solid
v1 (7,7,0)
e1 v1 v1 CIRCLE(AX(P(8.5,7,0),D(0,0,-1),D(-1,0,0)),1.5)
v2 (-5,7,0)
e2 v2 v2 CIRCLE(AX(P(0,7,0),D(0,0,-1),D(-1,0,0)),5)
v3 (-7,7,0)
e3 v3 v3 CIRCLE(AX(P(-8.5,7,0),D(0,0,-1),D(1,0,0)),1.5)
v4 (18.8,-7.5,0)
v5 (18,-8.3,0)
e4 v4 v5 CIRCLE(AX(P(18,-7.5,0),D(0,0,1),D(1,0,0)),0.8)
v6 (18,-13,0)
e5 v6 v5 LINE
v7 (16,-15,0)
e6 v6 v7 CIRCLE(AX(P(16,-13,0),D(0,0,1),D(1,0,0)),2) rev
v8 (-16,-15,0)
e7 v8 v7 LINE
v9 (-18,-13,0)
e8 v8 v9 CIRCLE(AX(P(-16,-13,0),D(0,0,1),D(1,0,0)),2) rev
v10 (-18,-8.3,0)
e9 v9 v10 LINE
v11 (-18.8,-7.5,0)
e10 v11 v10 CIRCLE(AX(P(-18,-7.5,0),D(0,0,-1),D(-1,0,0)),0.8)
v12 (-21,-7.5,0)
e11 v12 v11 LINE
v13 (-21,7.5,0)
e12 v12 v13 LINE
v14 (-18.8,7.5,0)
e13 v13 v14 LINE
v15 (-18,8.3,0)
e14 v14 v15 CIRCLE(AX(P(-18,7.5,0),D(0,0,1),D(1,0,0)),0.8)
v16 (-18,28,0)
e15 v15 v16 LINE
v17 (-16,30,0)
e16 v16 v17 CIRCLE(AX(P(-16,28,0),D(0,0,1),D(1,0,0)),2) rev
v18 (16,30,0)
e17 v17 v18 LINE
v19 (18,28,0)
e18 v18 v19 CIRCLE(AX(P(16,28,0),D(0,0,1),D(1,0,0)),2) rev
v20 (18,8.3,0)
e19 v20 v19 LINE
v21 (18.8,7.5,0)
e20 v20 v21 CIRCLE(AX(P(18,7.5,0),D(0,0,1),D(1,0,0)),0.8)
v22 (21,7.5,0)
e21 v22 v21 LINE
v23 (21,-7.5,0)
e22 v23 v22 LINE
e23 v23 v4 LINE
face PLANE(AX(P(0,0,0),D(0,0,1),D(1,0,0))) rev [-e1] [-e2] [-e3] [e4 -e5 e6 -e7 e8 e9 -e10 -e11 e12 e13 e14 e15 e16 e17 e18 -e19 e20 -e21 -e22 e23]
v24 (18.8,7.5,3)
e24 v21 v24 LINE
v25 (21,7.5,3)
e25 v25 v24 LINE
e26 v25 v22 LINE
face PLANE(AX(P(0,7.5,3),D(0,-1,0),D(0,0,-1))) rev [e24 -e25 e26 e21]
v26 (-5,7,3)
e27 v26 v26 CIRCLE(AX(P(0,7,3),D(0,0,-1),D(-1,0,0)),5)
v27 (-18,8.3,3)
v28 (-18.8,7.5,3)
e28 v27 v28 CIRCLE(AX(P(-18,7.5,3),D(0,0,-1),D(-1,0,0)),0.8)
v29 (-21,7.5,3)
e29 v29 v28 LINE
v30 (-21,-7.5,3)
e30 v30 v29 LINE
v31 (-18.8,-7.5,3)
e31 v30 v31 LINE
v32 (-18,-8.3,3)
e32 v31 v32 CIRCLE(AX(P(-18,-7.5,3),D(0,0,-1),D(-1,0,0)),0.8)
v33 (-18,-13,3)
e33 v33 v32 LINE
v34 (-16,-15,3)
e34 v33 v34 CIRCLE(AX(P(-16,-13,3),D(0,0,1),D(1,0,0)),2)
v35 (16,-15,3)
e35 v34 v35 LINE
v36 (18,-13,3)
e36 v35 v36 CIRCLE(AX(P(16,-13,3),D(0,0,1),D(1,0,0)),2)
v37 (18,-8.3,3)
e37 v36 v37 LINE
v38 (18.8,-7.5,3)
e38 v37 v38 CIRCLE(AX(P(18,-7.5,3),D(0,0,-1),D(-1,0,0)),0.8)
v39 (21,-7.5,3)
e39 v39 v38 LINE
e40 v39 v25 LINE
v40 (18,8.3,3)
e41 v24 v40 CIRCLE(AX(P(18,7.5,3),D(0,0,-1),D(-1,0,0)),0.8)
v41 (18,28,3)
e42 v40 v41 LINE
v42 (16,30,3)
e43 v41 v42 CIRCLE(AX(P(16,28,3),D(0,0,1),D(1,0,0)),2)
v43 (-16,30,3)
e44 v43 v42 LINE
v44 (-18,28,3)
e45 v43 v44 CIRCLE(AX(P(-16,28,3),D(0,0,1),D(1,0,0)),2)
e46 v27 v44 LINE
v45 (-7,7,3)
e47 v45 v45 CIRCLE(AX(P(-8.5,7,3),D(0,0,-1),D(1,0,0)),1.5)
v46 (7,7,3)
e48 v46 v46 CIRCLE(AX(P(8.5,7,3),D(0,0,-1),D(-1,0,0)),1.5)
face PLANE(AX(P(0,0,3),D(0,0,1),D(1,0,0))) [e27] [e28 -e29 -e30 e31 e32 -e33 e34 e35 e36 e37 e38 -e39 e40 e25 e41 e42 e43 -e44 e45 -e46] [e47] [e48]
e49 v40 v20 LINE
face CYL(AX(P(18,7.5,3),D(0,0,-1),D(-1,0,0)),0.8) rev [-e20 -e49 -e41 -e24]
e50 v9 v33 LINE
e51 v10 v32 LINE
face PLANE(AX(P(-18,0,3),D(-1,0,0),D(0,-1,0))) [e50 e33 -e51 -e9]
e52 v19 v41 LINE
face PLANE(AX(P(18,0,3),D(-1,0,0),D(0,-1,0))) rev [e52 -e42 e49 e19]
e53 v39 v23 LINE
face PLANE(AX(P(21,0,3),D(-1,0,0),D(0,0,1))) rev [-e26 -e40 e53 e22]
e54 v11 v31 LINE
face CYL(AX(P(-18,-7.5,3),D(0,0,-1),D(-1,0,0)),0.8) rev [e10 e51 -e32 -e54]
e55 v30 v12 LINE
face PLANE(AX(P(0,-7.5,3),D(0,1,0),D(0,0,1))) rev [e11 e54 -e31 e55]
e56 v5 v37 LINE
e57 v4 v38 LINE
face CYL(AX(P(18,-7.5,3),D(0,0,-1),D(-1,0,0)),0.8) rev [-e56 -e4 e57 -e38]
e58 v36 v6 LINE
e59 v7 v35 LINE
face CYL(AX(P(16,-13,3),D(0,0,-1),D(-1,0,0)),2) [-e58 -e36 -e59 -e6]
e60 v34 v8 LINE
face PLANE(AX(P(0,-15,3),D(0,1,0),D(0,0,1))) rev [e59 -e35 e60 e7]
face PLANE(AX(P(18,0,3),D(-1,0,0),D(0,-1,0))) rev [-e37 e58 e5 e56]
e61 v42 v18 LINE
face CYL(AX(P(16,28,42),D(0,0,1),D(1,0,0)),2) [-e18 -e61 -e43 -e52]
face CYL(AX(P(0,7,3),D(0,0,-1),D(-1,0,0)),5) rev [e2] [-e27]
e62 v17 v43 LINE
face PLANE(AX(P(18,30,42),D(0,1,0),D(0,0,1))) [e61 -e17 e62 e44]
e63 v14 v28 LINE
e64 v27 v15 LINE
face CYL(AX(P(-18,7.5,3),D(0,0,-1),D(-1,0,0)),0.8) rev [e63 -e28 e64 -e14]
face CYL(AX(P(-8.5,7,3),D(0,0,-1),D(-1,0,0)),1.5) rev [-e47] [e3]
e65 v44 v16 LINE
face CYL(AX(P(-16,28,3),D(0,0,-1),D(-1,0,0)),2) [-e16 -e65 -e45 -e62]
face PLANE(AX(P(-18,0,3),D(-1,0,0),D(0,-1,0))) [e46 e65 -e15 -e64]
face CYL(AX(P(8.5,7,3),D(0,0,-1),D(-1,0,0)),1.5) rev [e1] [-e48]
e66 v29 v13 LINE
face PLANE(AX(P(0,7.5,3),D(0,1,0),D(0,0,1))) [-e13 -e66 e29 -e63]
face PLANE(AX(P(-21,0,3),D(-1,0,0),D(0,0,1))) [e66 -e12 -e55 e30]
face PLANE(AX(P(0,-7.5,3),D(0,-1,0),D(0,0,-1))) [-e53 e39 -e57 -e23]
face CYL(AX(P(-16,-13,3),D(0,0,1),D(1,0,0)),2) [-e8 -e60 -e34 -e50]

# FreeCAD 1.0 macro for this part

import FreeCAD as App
import Part
import Sketcher


def edges_at(feature, points):
    """Names of the edges that pass closest to the given points."""
    edges = feature.Shape.Edges
    near = lambda p: min(range(len(edges)), key=lambda i: edges[i].distToShape(Part.Vertex(*p))[0])
    return sorted({f"Edge{near(p) + 1}" for p in points})

doc = App.newDocument("Part")
body = doc.addObject("PartDesign::Body", "Body")

# Sketch on XY plane
sketch1 = doc.addObject("Sketcher::SketchObject", "Sketch")
body.addObject(sketch1)
sketch1.AttachmentSupport = (doc.XY_Plane, [""])
sketch1.MapMode = "FlatFace"
sketch1.addGeometry([
    Part.LineSegment(App.Vector(-18, -7.5, 0), App.Vector(-18, -15, 0)),  # 0
    Part.LineSegment(App.Vector(-18, -15, 0), App.Vector(18, -15, 0)),  # 1
    Part.LineSegment(App.Vector(18, -15, 0), App.Vector(18, -7.5, 0)),  # 2
    Part.LineSegment(App.Vector(18, -7.5, 0), App.Vector(21, -7.5, 0)),  # 3
    Part.LineSegment(App.Vector(21, -7.5, 0), App.Vector(21, 7.5, 0)),  # 4
    Part.LineSegment(App.Vector(21, 7.5, 0), App.Vector(18, 7.5, 0)),  # 5
    Part.LineSegment(App.Vector(18, 7.5, 0), App.Vector(18, 15, 0)),  # 6
    Part.LineSegment(App.Vector(18, 15, 0), App.Vector(-18, 15, 0)),  # 7
    Part.LineSegment(App.Vector(-18, 15, 0), App.Vector(-18, 7.5, 0)),  # 8
    Part.LineSegment(App.Vector(-18, 7.5, 0), App.Vector(-21, 7.5, 0)),  # 9
    Part.LineSegment(App.Vector(-21, 7.5, 0), App.Vector(-21, -7.5, 0)),  # 10
    Part.LineSegment(App.Vector(-21, -7.5, 0), App.Vector(-18, -7.5, 0)),  # 11
], False)
sketch1.addConstraint([
    Sketcher.Constraint("Coincident", 0, 2, 1, 1),
    Sketcher.Constraint("Coincident", 1, 2, 2, 1),
    Sketcher.Constraint("Coincident", 2, 2, 3, 1),
    Sketcher.Constraint("Coincident", 3, 2, 4, 1),
    Sketcher.Constraint("Coincident", 4, 2, 5, 1),
    Sketcher.Constraint("Coincident", 5, 2, 6, 1),
    Sketcher.Constraint("Coincident", 6, 2, 7, 1),
    Sketcher.Constraint("Coincident", 7, 2, 8, 1),
    Sketcher.Constraint("Coincident", 8, 2, 9, 1),
    Sketcher.Constraint("Coincident", 9, 2, 10, 1),
    Sketcher.Constraint("Coincident", 10, 2, 11, 1),
    Sketcher.Constraint("Coincident", 11, 2, 0, 1),
    Sketcher.Constraint("Vertical", 0),
    Sketcher.Constraint("Horizontal", 1),
    Sketcher.Constraint("Vertical", 2),
    Sketcher.Constraint("Horizontal", 3),
    Sketcher.Constraint("Vertical", 4),
    Sketcher.Constraint("Horizontal", 5),
    Sketcher.Constraint("Vertical", 6),
    Sketcher.Constraint("Horizontal", 7),
    Sketcher.Constraint("Vertical", 8),
    Sketcher.Constraint("Horizontal", 9),
    Sketcher.Constraint("Vertical", 10),
    Sketcher.Constraint("Horizontal", 11),
    Sketcher.Constraint("Symmetric", 0, 2, 6, 2, -1, 1),
    Sketcher.Constraint("Symmetric", 2, 2, 8, 2, -1, 1),
    Sketcher.Constraint("Symmetric", 4, 2, 10, 2, -1, 1),
    Sketcher.Constraint("Symmetric", 5, 2, 8, 2, -2),
    Sketcher.Constraint("DistanceX", 1, 1, 1, 2, 36.0),
    Sketcher.Constraint("DistanceX", 3, 1, 3, 2, 3.0),
    Sketcher.Constraint("DistanceY", 4, 1, 4, 2, 15.0),
    Sketcher.Constraint("DistanceY", 0, 2, 0, 1, 7.5),
])
pad1 = doc.addObject("PartDesign::Pad", "Pad")
body.addObject(pad1)
pad1.Profile = sketch1
pad1.Length = 3

# Sketch on XY plane
sketch2 = doc.addObject("Sketcher::SketchObject", "Sketch001")
body.addObject(sketch2)
sketch2.AttachmentSupport = (doc.XY_Plane, [""])
sketch2.MapMode = "FlatFace"
sketch2.addGeometry([
    Part.LineSegment(App.Vector(18, 30, 0), App.Vector(18, 15, 0)),
    Part.LineSegment(App.Vector(18, 15, 0), App.Vector(-18, 15, 0)),
    Part.LineSegment(App.Vector(-18, 15, 0), App.Vector(-18, 30, 0)),
    Part.LineSegment(App.Vector(-18, 30, 0), App.Vector(18, 30, 0)),
], False)
sketch2.addConstraint([
    Sketcher.Constraint("Coincident", 0, 2, 1, 1),
    Sketcher.Constraint("Coincident", 1, 2, 2, 1),
    Sketcher.Constraint("Coincident", 2, 2, 3, 1),
    Sketcher.Constraint("Coincident", 3, 2, 0, 1),
    Sketcher.Constraint("Vertical", 0),
    Sketcher.Constraint("Horizontal", 1),
    Sketcher.Constraint("Vertical", 2),
    Sketcher.Constraint("Horizontal", 3),
    Sketcher.Constraint("DistanceX", 1, 2, 1, 1, 36.0),
    Sketcher.Constraint("DistanceY", 0, 2, 0, 1, 15.0),
    Sketcher.Constraint("DistanceX", -1, 1, 0, 2, 18.0),
    Sketcher.Constraint("DistanceY", -1, 1, 0, 2, 15.0),
])
pad2 = doc.addObject("PartDesign::Pad", "Pad001")
body.addObject(pad2)
pad2.Profile = sketch2
pad2.Length = 3

# Sketch on XY plane
sketch3 = doc.addObject("Sketcher::SketchObject", "Sketch002")
body.addObject(sketch3)
sketch3.AttachmentSupport = (doc.XY_Plane, [""])
sketch3.MapMode = "FlatFace"
sketch3.addGeometry([
    Part.Circle(App.Vector(0, 7, 0), App.Vector(0, 0, 1), 5),
    Part.Circle(App.Vector(8.5, 7, 0), App.Vector(0, 0, 1), 1.5),
    Part.Circle(App.Vector(-8.5, 7, 0), App.Vector(0, 0, 1), 1.5),
], False)
sketch3.addConstraint([
    Sketcher.Constraint("Equal", 1, 2),
    Sketcher.Constraint("Symmetric", 1, 3, 2, 3, -2),
    Sketcher.Constraint("PointOnObject", 0, 3, -2),
    Sketcher.Constraint("Horizontal", 0, 3, 1, 3),
    Sketcher.Constraint("Diameter", 0, 10.0),
    Sketcher.Constraint("Diameter", 1, 3.0),
    Sketcher.Constraint("DistanceY", -1, 1, 0, 3, 7.0),
    Sketcher.Constraint("DistanceX", 2, 3, 1, 3, 17.0),
])
pocket1 = doc.addObject("PartDesign::Pocket", "Pocket")
body.addObject(pocket1)
pocket1.Profile = sketch3
pocket1.Type = "ThroughAll"
pocket1.Reversed = True

# Sketch on XY plane
sketch4 = doc.addObject("Sketcher::SketchObject", "Sketch003")
body.addObject(sketch4)
sketch4.AttachmentSupport = (doc.XY_Plane, [""])
sketch4.MapMode = "FlatFace"
sketch4.addGeometry([
    Part.Circle(App.Vector(18, 7.5, 0), App.Vector(0, 0, 1), 0.8),
    Part.Circle(App.Vector(18, -7.5, 0), App.Vector(0, 0, 1), 0.8),
    Part.Circle(App.Vector(-18, 7.5, 0), App.Vector(0, 0, 1), 0.8),
    Part.Circle(App.Vector(-18, -7.5, 0), App.Vector(0, 0, 1), 0.8),
], False)
sketch4.addConstraint([
    Sketcher.Constraint("Equal", 0, 1),
    Sketcher.Constraint("Equal", 1, 2),
    Sketcher.Constraint("Equal", 2, 3),
    Sketcher.Constraint("Symmetric", 1, 3, 2, 3, -1, 1),
    Sketcher.Constraint("Symmetric", 0, 3, 3, 3, -1, 1),
    Sketcher.Constraint("Symmetric", 0, 3, 2, 3, -2),
    Sketcher.Constraint("Diameter", 0, 1.6),
    Sketcher.Constraint("DistanceX", -1, 1, 0, 3, 18.0),
    Sketcher.Constraint("DistanceY", 1, 3, 0, 3, 15.0),
])
pocket2 = doc.addObject("PartDesign::Pocket", "Pocket001")
body.addObject(pocket2)
pocket2.Profile = sketch4
pocket2.Type = "ThroughAll"
pocket2.Reversed = True
doc.recompute()

fillet = doc.addObject("PartDesign::Fillet", "Fillet")
body.addObject(fillet)
fillet.Base = (pocket2, edges_at(pocket2, [
    (18, -15, 1.5),
    (-18, -15, 1.5),
    (-18, 30, 1.5),
    (18, 30, 1.5),
]))
fillet.Radius = 2

doc.recompute()
